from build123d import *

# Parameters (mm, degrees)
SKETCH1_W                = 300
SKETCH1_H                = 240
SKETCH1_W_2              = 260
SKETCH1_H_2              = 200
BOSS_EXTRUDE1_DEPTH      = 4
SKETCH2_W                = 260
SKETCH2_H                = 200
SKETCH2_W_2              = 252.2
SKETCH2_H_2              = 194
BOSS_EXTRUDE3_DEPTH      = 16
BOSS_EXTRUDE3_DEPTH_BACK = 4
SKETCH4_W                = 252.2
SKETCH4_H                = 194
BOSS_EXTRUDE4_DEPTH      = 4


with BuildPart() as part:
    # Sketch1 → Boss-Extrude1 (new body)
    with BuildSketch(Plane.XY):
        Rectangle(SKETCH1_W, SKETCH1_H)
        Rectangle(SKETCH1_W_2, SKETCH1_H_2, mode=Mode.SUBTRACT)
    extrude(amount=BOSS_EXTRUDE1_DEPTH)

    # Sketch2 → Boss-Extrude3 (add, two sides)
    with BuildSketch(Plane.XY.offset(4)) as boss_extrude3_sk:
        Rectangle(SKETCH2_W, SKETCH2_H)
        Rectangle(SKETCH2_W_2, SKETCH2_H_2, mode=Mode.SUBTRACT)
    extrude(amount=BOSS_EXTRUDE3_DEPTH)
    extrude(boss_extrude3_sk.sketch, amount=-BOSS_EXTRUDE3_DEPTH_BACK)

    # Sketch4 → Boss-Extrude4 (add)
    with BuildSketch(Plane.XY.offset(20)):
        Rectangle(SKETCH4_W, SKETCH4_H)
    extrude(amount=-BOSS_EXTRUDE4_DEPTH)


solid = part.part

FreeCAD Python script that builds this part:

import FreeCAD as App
import Part
import Sketcher

V = App.Vector
Q = App.Units.Quantity


def add_polygon(sketch, points):
    """Adds a closed chain of lines whose ends are joined by coincident constraints."""
    first, n = sketch.GeometryCount, len(points)
    for a, b in zip(points, points[1:] + points[:1]):
        sketch.addGeometry(Part.LineSegment(App.Vector(*a, 0), App.Vector(*b, 0)), False)
    for i in range(n):
        sketch.addConstraint(Sketcher.Constraint("Coincident", first + i, 2, first + (i + 1) % n, 1))

doc = App.newDocument("Part")
params = doc.addObject("Spreadsheet::Sheet", "Params")
for row, (alias, value) in enumerate([
    ("sketch1_width", "300 mm"),
    ("sketch1_width2", "260 mm"),
    ("sketch1_height", "240 mm"),
    ("sketch1_height2", "200 mm"),
    ("pad1_length", "4 mm"),
    ("sketch2_width", "260 mm"),
    ("sketch2_height", "200 mm"),
    ("sketch2_height2", "194 mm"),
    ("sketch2_width2", "252.2 mm"),
    ("pad2_length", "16 mm"),
    ("pad2_length2", "4 mm"),
    ("sketch3_height", "194 mm"),
    ("sketch3_width", "252.2 mm"),
    ("pad3_length", "4 mm"),
], start=1):
    params.set(f"A{row}", alias)
    params.set(f"B{row}", "=" + value)
    params.setAlias(f"B{row}", alias)

body = doc.addObject("PartDesign::Body", "Body")

# Sketch on XY plane
sketch1 = doc.addObject("Sketcher::SketchObject", "Sketch")
body.addObject(sketch1)
sketch1.AttachmentSupport = (doc.XY_Plane, [""])
sketch1.MapMode = "FlatFace"
add_polygon(sketch1, [(-150, 120), (-150, -120), (150, -120), (150, 120)])  # lines 0-3
add_polygon(sketch1, [(130, -100), (-130, -100), (-130, 100), (130, 100)])  # lines 4-7
sketch1.addConstraint([
    Sketcher.Constraint("Vertical", 0),
    Sketcher.Constraint("Horizontal", 1),
    Sketcher.Constraint("Vertical", 2),
    Sketcher.Constraint("Horizontal", 3),
    Sketcher.Constraint("Horizontal", 4),
    Sketcher.Constraint("Vertical", 5),
    Sketcher.Constraint("Horizontal", 6),
    Sketcher.Constraint("Vertical", 7),
    Sketcher.Constraint("Symmetric", 0, 2, 2, 2, -1, 1),
    Sketcher.Constraint("Symmetric", 4, 2, 6, 2, -1, 1),
    Sketcher.Constraint("DistanceX", 1, 1, 1, 2, Q("300 mm")),
    Sketcher.Constraint("DistanceX", 4, 2, 4, 1, Q("260 mm")),
    Sketcher.Constraint("DistanceY", 0, 2, 0, 1, Q("240 mm")),
    Sketcher.Constraint("DistanceY", 5, 1, 5, 2, Q("200 mm")),
])
sketch1.setExpression("Constraints[18]", "Params.sketch1_width")
sketch1.setExpression("Constraints[19]", "Params.sketch1_width2")
sketch1.setExpression("Constraints[20]", "Params.sketch1_height")
sketch1.setExpression("Constraints[21]", "Params.sketch1_height2")
pad1 = doc.addObject("PartDesign::Pad", "Pad")
body.addObject(pad1)
pad1.Profile = sketch1
pad1.setExpression("Length", "Params.pad1_length")

# Sketch on XY plane
sketch2 = doc.addObject("Sketcher::SketchObject", "Sketch001")
body.addObject(sketch2)
sketch2.AttachmentSupport = (doc.XY_Plane, [""])
sketch2.MapMode = "FlatFace"
sketch2.AttachmentOffset = App.Placement(V(0, 0, 4), App.Rotation())
add_polygon(sketch2, [(-130, 100), (-130, -100), (130, -100), (130, 100)])  # lines 0-3
add_polygon(sketch2, [(126, -97), (-126, -97), (-126, 97), (126, 97)])  # lines 4-7
sketch2.addConstraint([
    Sketcher.Constraint("Vertical", 0),
    Sketcher.Constraint("Horizontal", 1),
    Sketcher.Constraint("Vertical", 2),
    Sketcher.Constraint("Horizontal", 3),
    Sketcher.Constraint("Horizontal", 4),
    Sketcher.Constraint("Vertical", 5),
    Sketcher.Constraint("Horizontal", 6),
    Sketcher.Constraint("Vertical", 7),
    Sketcher.Constraint("Symmetric", 0, 2, 2, 2, -1, 1),
    Sketcher.Constraint("Symmetric", 4, 2, 6, 2, -1, 1),
    Sketcher.Constraint("DistanceX", 1, 1, 1, 2, Q("260 mm")),
    Sketcher.Constraint("DistanceY", 0, 2, 0, 1, Q("200 mm")),
    Sketcher.Constraint("DistanceY", 5, 1, 5, 2, Q("194 mm")),
    Sketcher.Constraint("DistanceX", 4, 2, 4, 1, Q("252.2 mm")),
])
sketch2.setExpression("Constraints[18]", "Params.sketch2_width")
sketch2.setExpression("Constraints[19]", "Params.sketch2_height")
sketch2.setExpression("Constraints[20]", "Params.sketch2_height2")
sketch2.setExpression("Constraints[21]", "Params.sketch2_width2")
pad2 = doc.addObject("PartDesign::Pad", "Pad001")
body.addObject(pad2)
pad2.Profile = sketch2
pad2.Type = "TwoLengths"
pad2.setExpression("Length", "Params.pad2_length")
pad2.setExpression("Length2", "Params.pad2_length2")

# Sketch on XY plane
sketch3 = doc.addObject("Sketcher::SketchObject", "Sketch002")
body.addObject(sketch3)
sketch3.AttachmentSupport = (doc.XY_Plane, [""])
sketch3.MapMode = "FlatFace"
sketch3.AttachmentOffset = App.Placement(V(0, 0, 20), App.Rotation())
add_polygon(sketch3, [(-126, 97), (-126, -97), (126, -97), (126, 97)])  # lines 0-3
sketch3.addConstraint([
    Sketcher.Constraint("Vertical", 0),
    Sketcher.Constraint("Horizontal", 1),
    Sketcher.Constraint("Vertical", 2),
    Sketcher.Constraint("Horizontal", 3),
    Sketcher.Constraint("Symmetric", 0, 2, 2, 2, -1, 1),
    Sketcher.Constraint("DistanceY", 0, 2, 0, 1, Q("194 mm")),
    Sketcher.Constraint("DistanceX", 1, 1, 1, 2, Q("252.2 mm")),
])
sketch3.setExpression("Constraints[9]", "Params.sketch3_height")
sketch3.setExpression("Constraints[10]", "Params.sketch3_width")
pad3 = doc.addObject("PartDesign::Pad", "Pad002")
body.addObject(pad3)
pad3.Profile = sketch3
pad3.setExpression("Length", "Params.pad3_length")
pad3.Reversed = True

doc.recompute()
